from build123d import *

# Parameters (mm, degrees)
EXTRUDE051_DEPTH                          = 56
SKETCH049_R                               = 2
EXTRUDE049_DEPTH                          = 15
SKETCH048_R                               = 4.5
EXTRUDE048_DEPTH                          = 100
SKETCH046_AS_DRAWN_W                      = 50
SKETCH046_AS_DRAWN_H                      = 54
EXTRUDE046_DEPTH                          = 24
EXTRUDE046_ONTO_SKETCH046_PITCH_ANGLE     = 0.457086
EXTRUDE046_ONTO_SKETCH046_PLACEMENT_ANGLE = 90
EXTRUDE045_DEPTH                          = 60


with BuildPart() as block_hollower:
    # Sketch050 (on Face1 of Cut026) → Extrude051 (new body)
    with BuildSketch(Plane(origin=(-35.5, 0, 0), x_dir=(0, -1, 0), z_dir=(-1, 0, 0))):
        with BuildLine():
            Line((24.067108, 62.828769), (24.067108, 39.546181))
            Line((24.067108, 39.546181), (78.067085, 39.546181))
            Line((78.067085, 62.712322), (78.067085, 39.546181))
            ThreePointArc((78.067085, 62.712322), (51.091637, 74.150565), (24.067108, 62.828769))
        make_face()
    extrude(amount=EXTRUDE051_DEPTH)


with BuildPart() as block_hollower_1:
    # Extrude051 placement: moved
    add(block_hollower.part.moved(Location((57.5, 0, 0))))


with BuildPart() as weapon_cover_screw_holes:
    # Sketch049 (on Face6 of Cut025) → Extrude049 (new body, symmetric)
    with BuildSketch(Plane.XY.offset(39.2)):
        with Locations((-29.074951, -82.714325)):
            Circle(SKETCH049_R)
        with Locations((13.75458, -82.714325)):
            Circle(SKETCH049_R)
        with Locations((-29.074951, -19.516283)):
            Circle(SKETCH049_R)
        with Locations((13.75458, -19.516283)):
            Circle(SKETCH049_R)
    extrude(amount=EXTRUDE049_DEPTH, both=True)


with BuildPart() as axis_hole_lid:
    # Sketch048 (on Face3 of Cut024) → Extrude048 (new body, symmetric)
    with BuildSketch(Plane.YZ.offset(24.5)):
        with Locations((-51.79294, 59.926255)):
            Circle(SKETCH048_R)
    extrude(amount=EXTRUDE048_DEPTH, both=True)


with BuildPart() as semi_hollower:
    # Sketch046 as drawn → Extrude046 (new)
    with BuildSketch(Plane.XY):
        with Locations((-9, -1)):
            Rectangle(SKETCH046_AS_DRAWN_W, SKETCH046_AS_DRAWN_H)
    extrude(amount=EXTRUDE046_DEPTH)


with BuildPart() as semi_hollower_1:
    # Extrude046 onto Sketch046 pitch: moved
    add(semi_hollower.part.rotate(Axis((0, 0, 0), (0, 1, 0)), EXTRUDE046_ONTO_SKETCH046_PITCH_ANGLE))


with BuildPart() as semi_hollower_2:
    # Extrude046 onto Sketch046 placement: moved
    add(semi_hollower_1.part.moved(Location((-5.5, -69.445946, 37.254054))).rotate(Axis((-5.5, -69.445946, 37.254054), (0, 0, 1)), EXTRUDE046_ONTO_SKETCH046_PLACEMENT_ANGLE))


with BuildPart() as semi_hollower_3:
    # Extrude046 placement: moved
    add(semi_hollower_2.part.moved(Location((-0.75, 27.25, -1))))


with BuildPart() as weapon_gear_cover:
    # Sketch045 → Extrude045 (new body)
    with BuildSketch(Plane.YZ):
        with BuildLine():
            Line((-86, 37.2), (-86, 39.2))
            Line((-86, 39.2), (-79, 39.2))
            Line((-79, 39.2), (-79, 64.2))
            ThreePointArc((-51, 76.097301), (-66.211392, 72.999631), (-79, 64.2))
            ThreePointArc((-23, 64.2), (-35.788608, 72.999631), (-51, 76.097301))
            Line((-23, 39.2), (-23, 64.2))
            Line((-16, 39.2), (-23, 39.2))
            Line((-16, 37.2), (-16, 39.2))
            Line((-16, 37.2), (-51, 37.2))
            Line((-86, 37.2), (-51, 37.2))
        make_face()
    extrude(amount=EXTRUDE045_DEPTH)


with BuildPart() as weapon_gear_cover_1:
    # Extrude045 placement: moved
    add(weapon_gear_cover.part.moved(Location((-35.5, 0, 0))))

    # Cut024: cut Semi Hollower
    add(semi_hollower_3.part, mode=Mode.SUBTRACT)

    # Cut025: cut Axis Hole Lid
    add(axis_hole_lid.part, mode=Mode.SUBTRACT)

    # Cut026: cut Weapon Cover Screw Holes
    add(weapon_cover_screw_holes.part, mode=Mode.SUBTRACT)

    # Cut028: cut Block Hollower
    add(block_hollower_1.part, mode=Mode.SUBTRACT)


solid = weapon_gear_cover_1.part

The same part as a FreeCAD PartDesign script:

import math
import FreeCAD as App
import Part
import Sketcher
from FreeCAD import Vector

doc = App.newDocument("Part")
body = doc.addObject("PartDesign::Body", "Body")

sketch1 = body.newObject("Sketcher::SketchObject", "Sketch")
sketch1.AttachmentSupport = (doc.getObject("YZ_Plane"), [""])
sketch1.MapMode = "FlatFace"
sketch1.AttachmentOffset = App.Placement(Vector(0, 0, -35.5), App.Rotation())
sketch1.addGeometry([
    Part.LineSegment(Vector(-24.067108, 62.828769, 0), Vector(-24.067108, 39.546181, 0)),
    Part.LineSegment(Vector(-24.067108, 39.546181, 0), Vector(-78.067085, 39.546181, 0)),
    Part.LineSegment(Vector(-78.067085, 39.546181, 0), Vector(-78.067085, 62.712322, 0)),
    Part.ArcOfCircle(Part.Circle(Vector(-51.010297, 36.43076, 0), Vector(0, 0, 1), 37.719892), math.radians(44.414422), math.radians(135.832686)),
], False)
sketch1.addConstraint([
    Sketcher.Constraint("Coincident", 0, 2, 1, 1),
    Sketcher.Constraint("Coincident", 1, 2, 2, 1),
    Sketcher.Constraint("Coincident", 2, 2, 3, 2),
    Sketcher.Constraint("Coincident", 3, 1, 0, 1),
    Sketcher.Constraint("Vertical", 0),
    Sketcher.Constraint("Horizontal", 1),
    Sketcher.Constraint("Vertical", 2),
    Sketcher.Constraint("Radius", 3, 37.719892),
    Sketcher.Constraint("DistanceY", 0, 2, 0, 1, 23.282588),
    Sketcher.Constraint("DistanceY", 2, 1, 2, 2, 23.166141),
    Sketcher.Constraint("DistanceX", 1, 2, 1, 1, 53.999977),
    Sketcher.Constraint("DistanceY", -1, 1, 3, 3, 36.43076),
    Sketcher.Constraint("DistanceX", 0, 2, -1, 1, 24.067108),
])
pad1 = body.newObject("PartDesign::Pad", "Pad")
pad1.Profile = sketch1
pad1.Length = 56
pad1.Reversed = True
body2 = doc.addObject("PartDesign::Body", "Body001")
doc.recompute()

body.Placement = App.Placement(Vector(57.5, 0, 0), App.Rotation(Vector(0, 0, 1), 0))
boolean = body2.newObject("PartDesign::Boolean", "Boolean")
boolean.Type = "Fuse"
boolean.addObjects([body])
body3 = doc.addObject("PartDesign::Body", "Body002")
body3.AllowCompound = True

sketch2 = body3.newObject("Sketcher::SketchObject", "Sketch001")
sketch2.AttachmentSupport = (doc.getObject("XY_Plane002"), [""])
sketch2.MapMode = "FlatFace"
sketch2.AttachmentOffset = App.Placement(Vector(0, 0, 39.2), App.Rotation())
sketch2.addGeometry([
    Part.Circle(Vector(-29.074951, -82.714325, 0), Vector(0, 0, 1), 2),
    Part.Circle(Vector(13.75458, -82.714325, 0), Vector(0, 0, 1), 2),
    Part.Circle(Vector(-29.074951, -19.516283, 0), Vector(0, 0, 1), 2),
    Part.Circle(Vector(13.75458, -19.516283, 0), Vector(0, 0, 1), 2),
], False)
sketch2.addConstraint([
    Sketcher.Constraint("Equal", 0, 1),
    Sketcher.Constraint("Equal", 1, 2),
    Sketcher.Constraint("Equal", 2, 3),
    Sketcher.Constraint("Horizontal", 0, 3, 1, 3),
    Sketcher.Constraint("Horizontal", 2, 3, 3, 3),
    Sketcher.Constraint("Vertical", 0, 3, 2, 3),
    Sketcher.Constraint("Vertical", 1, 3, 3, 3),
    Sketcher.Constraint("Diameter", 0, 4.0),
    Sketcher.Constraint("DistanceX", 0, 3, -1, 1, 29.074951),
    Sketcher.Constraint("DistanceX", -1, 1, 1, 3, 13.75458),
    Sketcher.Constraint("DistanceY", 0, 3, -1, 1, 82.714325),
    Sketcher.Constraint("DistanceY", 2, 3, -1, 1, 19.516283),
])
pad2 = body3.newObject("PartDesign::Pad", "Pad001")
pad2.Profile = sketch2
pad2.Length = 30
pad2.Midplane = True
body4 = doc.addObject("PartDesign::Body", "Body003")

sketch3 = body4.newObject("Sketcher::SketchObject", "Sketch002")
sketch3.AttachmentSupport = (doc.getObject("YZ_Plane003"), [""])
sketch3.MapMode = "FlatFace"
sketch3.AttachmentOffset = App.Placement(Vector(0, 0, 24.5), App.Rotation())
sketch3.addGeometry(Part.Circle(Vector(-51.79294, 59.926255, 0), Vector(0, 0, 1), 4.5), False)
sketch3.addConstraint([
    Sketcher.Constraint("Diameter", 0, 9.0),
    Sketcher.Constraint("DistanceX", 0, 3, -1, 1, 51.79294),
    Sketcher.Constraint("DistanceY", -1, 1, 0, 3, 59.926255),
])
pad3 = body4.newObject("PartDesign::Pad", "Pad002")
pad3.Profile = sketch3
pad3.Length = 200
pad3.Midplane = True
body5 = doc.addObject("PartDesign::Body", "Body004")

sketch4 = body5.newObject("Sketcher::SketchObject", "Sketch003")
sketch4.AttachmentSupport = (doc.getObject("XY_Plane004"), [""])
sketch4.MapMode = "FlatFace"
sketch4.addGeometry([
    Part.LineSegment(Vector(-34, 26, 0), Vector(-34, -28, 0)),
    Part.LineSegment(Vector(-34, -28, 0), Vector(16, -28, 0)),
    Part.LineSegment(Vector(16, -28, 0), Vector(16, 26, 0)),
    Part.LineSegment(Vector(16, 26, 0), Vector(-34, 26, 0)),
], False)
sketch4.addConstraint([
    Sketcher.Constraint("Coincident", 0, 2, 1, 1),
    Sketcher.Constraint("Coincident", 1, 2, 2, 1),
    Sketcher.Constraint("Coincident", 2, 2, 3, 1),
    Sketcher.Constraint("Coincident", 3, 2, 0, 1),
    Sketcher.Constraint("Vertical", 0),
    Sketcher.Constraint("Horizontal", 1),
    Sketcher.Constraint("Vertical", 2),
    Sketcher.Constraint("Horizontal", 3),
    Sketcher.Constraint("DistanceX", 1, 1, 1, 2, 50.0),
    Sketcher.Constraint("DistanceY", 0, 2, 0, 1, 54.0),
    Sketcher.Constraint("DistanceX", 0, 2, -1, 1, 34.0),
    Sketcher.Constraint("DistanceY", 0, 2, -1, 1, 28.0),
])
pad4 = body5.newObject("PartDesign::Pad", "Pad003")
pad4.Profile = sketch4
pad4.Length = 24
body6 = doc.addObject("PartDesign::Body", "Body005")
doc.recompute()

body5.Placement = App.Placement(Vector(0, 0, 0), App.Rotation(Vector(0, 1, 0), 0.457086))
boolean2 = body6.newObject("PartDesign::Boolean", "Boolean001")
boolean2.Type = "Fuse"
boolean2.addObjects([body5])
body7 = doc.addObject("PartDesign::Body", "Body006")
doc.recompute()

body6.Placement = App.Placement(Vector(-5.5, -69.445946, 37.254054), App.Rotation(Vector(0, 0, 1), 90))
boolean3 = body7.newObject("PartDesign::Boolean", "Boolean002")
boolean3.Type = "Fuse"
boolean3.addObjects([body6])
body8 = doc.addObject("PartDesign::Body", "Body007")
doc.recompute()

body7.Placement = App.Placement(Vector(-0.75, 27.25, -1), App.Rotation(Vector(0, 0, 1), 0))
boolean4 = body8.newObject("PartDesign::Boolean", "Boolean003")
boolean4.Type = "Fuse"
boolean4.addObjects([body7])
body9 = doc.addObject("PartDesign::Body", "Body008")

sketch5 = body9.newObject("Sketcher::SketchObject", "Sketch004")
sketch5.AttachmentSupport = (doc.getObject("YZ_Plane008"), [""])
sketch5.MapMode = "FlatFace"
sketch5.addGeometry([
    Part.LineSegment(Vector(-86, 39.2, 0), Vector(-86, 37.2, 0)),
    Part.LineSegment(Vector(-86, 37.2, 0), Vector(-16, 37.2, 0)),
    Part.LineSegment(Vector(-16, 37.2, 0), Vector(-16, 39.2, 0)),
    Part.LineSegment(Vector(-16, 39.2, 0), Vector(-23, 39.2, 0)),
    Part.LineSegment(Vector(-23, 39.2, 0), Vector(-23, 64.2, 0)),
    Part.ArcOfCircle(Part.Circle(Vector(-51, 37.200002, 0), Vector(0, 0, 1), 38.897299), math.radians(43.958371), math.radians(90.000001)),
    Part.ArcOfCircle(Part.Circle(Vector(-51, 37.200002, 0), Vector(0, 0, 1), 38.897299), math.radians(89.999999), math.radians(136.041629)),
    Part.LineSegment(Vector(-79, 64.2, 0), Vector(-79, 39.2, 0)),
    Part.LineSegment(Vector(-79, 39.2, 0), Vector(-86, 39.2, 0)),
], False)
sketch5.addConstraint([
    Sketcher.Constraint("Coincident", 0, 2, 1, 1),
    Sketcher.Constraint("Coincident", 1, 2, 2, 1),
    Sketcher.Constraint("Coincident", 2, 2, 3, 1),
    Sketcher.Constraint("Coincident", 3, 2, 4, 1),
    Sketcher.Constraint("Coincident", 4, 2, 5, 1),
    Sketcher.Constraint("Tangent", 5, 2, 6, 1),
    Sketcher.Constraint("Coincident", 6, 2, 7, 1),
    Sketcher.Constraint("Coincident", 7, 2, 8, 1),
    Sketcher.Constraint("Coincident", 8, 2, 0, 1),
    Sketcher.Constraint("Vertical", 0),
    Sketcher.Constraint("Horizontal", 1),
    Sketcher.Constraint("Vertical", 2),
    Sketcher.Constraint("Horizontal", 3),
    Sketcher.Constraint("Vertical", 4),
    Sketcher.Constraint("Vertical", 7),
    Sketcher.Constraint("Horizontal", 8),
    Sketcher.Constraint("Equal", 5, 6),
    Sketcher.Constraint("Horizontal", 4, 2, 6, 2),
    Sketcher.Constraint("Horizontal", 3, 2, 7, 2),
    Sketcher.Constraint("Vertical", 6, 3, 5, 2),
    Sketcher.Constraint("Equal", 3, 8),
    Sketcher.Constraint("DistanceX", 1, 1, 1, 2, 70.0),
    Sketcher.Constraint("DistanceX", 3, 2, 3, 1, 7.0),
    Sketcher.Constraint("DistanceY", 0, 2, 0, 1, 2.0),
    Sketcher.Constraint("DistanceY", 4, 1, 4, 2, 25.0),
    Sketcher.Constraint("DistanceX", 5, 3, -1, 1, 51.0),
    Sketcher.Constraint("DistanceY", -1, 1, 0, 2, 37.2),
    Sketcher.Constraint("Radius", 5, 38.897299),
])
pad5 = body9.newObject("PartDesign::Pad", "Pad004")
pad5.Profile = sketch5
pad5.Length = 60
body10 = doc.addObject("PartDesign::Body", "Body009")
doc.recompute()

body9.Placement = App.Placement(Vector(-35.5, 0, 0), App.Rotation(Vector(0, 0, 1), 0))
boolean5 = body10.newObject("PartDesign::Boolean", "Boolean004")
boolean5.Type = "Fuse"
boolean5.addObjects([body9])
doc.recompute()

boolean6 = body10.newObject("PartDesign::Boolean", "Boolean005")
boolean6.Type = "Cut"
boolean6.addObjects([body8])
doc.recompute()

boolean7 = body10.newObject("PartDesign::Boolean", "Boolean006")
boolean7.Type = "Cut"
boolean7.addObjects([body4])
doc.recompute()

boolean8 = body10.newObject("PartDesign::Boolean", "Boolean007")
boolean8.Type = "Cut"
boolean8.addObjects([body3])
doc.recompute()

boolean9 = body10.newObject("PartDesign::Boolean", "Boolean008")
boolean9.Type = "Cut"
boolean9.addObjects([body2])

doc.recompute()
